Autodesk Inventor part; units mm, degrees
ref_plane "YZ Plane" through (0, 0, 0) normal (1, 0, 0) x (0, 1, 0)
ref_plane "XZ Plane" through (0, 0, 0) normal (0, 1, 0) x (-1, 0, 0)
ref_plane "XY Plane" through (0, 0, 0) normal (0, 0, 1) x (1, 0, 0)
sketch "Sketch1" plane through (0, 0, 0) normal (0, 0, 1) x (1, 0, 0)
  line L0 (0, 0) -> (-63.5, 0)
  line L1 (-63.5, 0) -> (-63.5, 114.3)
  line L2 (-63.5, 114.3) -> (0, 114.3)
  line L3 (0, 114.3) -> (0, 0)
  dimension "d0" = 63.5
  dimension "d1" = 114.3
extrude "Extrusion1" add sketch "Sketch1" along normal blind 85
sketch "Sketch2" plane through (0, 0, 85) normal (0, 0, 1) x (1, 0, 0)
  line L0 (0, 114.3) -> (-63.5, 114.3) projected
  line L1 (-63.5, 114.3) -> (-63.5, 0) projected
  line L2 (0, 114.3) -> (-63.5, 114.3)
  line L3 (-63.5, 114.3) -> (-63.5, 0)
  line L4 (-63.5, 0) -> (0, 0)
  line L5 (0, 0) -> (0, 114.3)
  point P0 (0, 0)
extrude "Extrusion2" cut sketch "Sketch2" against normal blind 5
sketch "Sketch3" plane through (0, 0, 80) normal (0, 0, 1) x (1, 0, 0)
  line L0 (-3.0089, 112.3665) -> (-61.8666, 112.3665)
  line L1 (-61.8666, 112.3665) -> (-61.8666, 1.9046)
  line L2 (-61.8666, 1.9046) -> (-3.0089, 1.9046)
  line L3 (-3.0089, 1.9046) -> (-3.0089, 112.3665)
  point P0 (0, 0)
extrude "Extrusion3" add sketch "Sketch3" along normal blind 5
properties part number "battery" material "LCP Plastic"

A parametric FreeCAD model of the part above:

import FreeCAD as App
import Part
import Sketcher
Q = App.Units.Quantity


def add_polygon(sketch, points):
    """Adds a closed chain of lines whose ends are joined by coincident constraints."""
    first, n = sketch.GeometryCount, len(points)
    for a, b in zip(points, points[1:] + points[:1]):
        sketch.addGeometry(Part.LineSegment(App.Vector(*a, 0), App.Vector(*b, 0)), False)
    for i in range(n):
        sketch.addConstraint(Sketcher.Constraint("Coincident", first + i, 2, first + (i + 1) % n, 1))

doc = App.newDocument("Part")
body = doc.addObject("PartDesign::Body", "Body")

sketch1 = doc.addObject("Sketcher::SketchObject", "Sketch")
body.addObject(sketch1)
sketch1.AttachmentSupport = (doc.XY_Plane, [""])
sketch1.MapMode = "FlatFace"
add_polygon(sketch1, [(-64, 0), (0, 0), (0, 114), (-64, 114)])
sketch1.addConstraint([
    Sketcher.Constraint("Horizontal", 0),
    Sketcher.Constraint("Vertical", 1),
    Sketcher.Constraint("Horizontal", 2),
    Sketcher.Constraint("Vertical", 3),
    Sketcher.Constraint("Coincident", 0, 2, -1, 1),
    Sketcher.Constraint("DistanceX", 0, 1, 0, 2, Q("63.5 mm")),
    Sketcher.Constraint("DistanceY", 1, 1, 1, 2, Q("114.3 mm")),
])
pad1 = doc.addObject("PartDesign::Pad", "Pad")
body.addObject(pad1)
pad1.Profile = sketch1
pad1.Length = 85

sketch2 = doc.addObject("Sketcher::SketchObject", "Sketch001")
body.addObject(sketch2)
sketch2.AttachmentSupport = (doc.XY_Plane, [""])
sketch2.MapMode = "FlatFace"
sketch2.AttachmentOffset = App.Placement(App.Vector(0, 0, 85), App.Rotation())
add_polygon(sketch2, [(0, 0), (0, 114), (-64, 114), (-64, 0)])
sketch2.addConstraint([
    Sketcher.Constraint("Vertical", 0),
    Sketcher.Constraint("Horizontal", 1),
    Sketcher.Constraint("Vertical", 2),
    Sketcher.Constraint("Horizontal", 3),
    Sketcher.Constraint("Coincident", 3, 2, -1, 1),
    Sketcher.Constraint("DistanceX", 1, 2, 1, 1, Q("63.5 mm")),
    Sketcher.Constraint("DistanceY", 0, 1, 0, 2, Q("114.3 mm")),
])
pocket1 = doc.addObject("PartDesign::Pocket", "Pocket")
body.addObject(pocket1)
pocket1.Profile = sketch2
pocket1.Length = 5

sketch3 = doc.addObject("Sketcher::SketchObject", "Sketch002")
body.addObject(sketch3)
sketch3.AttachmentSupport = (doc.XY_Plane, [""])
sketch3.MapMode = "FlatFace"
sketch3.AttachmentOffset = App.Placement(App.Vector(0, 0, 80), App.Rotation())
add_polygon(sketch3, [(-3, 2), (-3, 112), (-62, 112), (-62, 2)])
sketch3.addConstraint([
    Sketcher.Constraint("Vertical", 0),
    Sketcher.Constraint("Horizontal", 1),
    Sketcher.Constraint("Vertical", 2),
    Sketcher.Constraint("Horizontal", 3),
    Sketcher.Constraint("DistanceY", 0, 1, 0, 2, Q("110.462 mm")),
    Sketcher.Constraint("DistanceX", 1, 2, 1, 1, Q("58.8577 mm")),
    Sketcher.Constraint("DistanceX", 0, 2, -1, 1, Q("3.009 mm")),
    Sketcher.Constraint("DistanceY", -1, 1, 0, 2, Q("112.3665 mm")),
])
pad2 = doc.addObject("PartDesign::Pad", "Pad001")
body.addObject(pad2)
pad2.Profile = sketch3
pad2.Length = 5

doc.recompute()
